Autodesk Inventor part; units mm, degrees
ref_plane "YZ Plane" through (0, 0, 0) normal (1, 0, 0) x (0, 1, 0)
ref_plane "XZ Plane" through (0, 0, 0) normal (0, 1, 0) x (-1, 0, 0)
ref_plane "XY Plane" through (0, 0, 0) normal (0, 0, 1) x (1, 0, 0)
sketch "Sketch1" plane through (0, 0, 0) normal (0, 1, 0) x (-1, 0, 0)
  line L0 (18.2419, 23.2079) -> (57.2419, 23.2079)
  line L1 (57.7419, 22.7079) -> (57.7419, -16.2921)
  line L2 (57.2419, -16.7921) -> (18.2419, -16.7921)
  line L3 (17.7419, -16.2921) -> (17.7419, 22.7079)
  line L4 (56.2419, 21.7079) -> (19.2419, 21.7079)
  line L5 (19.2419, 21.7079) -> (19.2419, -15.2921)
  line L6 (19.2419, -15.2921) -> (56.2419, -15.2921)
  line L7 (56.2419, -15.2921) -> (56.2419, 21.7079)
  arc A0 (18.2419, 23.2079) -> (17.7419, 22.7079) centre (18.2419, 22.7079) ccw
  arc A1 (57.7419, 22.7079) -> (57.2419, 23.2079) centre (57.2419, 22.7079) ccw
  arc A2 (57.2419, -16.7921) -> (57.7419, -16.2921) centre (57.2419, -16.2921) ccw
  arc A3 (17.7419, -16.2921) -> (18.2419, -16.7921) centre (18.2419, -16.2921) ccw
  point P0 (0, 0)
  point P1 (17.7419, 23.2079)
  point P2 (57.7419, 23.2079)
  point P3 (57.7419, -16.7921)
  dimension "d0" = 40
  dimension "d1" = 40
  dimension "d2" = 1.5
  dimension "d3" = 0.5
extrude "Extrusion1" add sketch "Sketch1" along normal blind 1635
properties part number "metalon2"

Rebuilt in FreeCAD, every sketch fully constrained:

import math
import FreeCAD as App
import Part
import Sketcher
from FreeCAD import Vector
Q = App.Units.Quantity


def add_polygon(sketch, points):
    """Adds a closed chain of lines whose ends are joined by coincident constraints."""
    first, n = sketch.GeometryCount, len(points)
    for a, b in zip(points, points[1:] + points[:1]):
        sketch.addGeometry(Part.LineSegment(App.Vector(*a, 0), App.Vector(*b, 0)), False)
    for i in range(n):
        sketch.addConstraint(Sketcher.Constraint("Coincident", first + i, 2, first + (i + 1) % n, 1))

doc = App.newDocument("Part")
params = doc.addObject("Spreadsheet::Sheet", "Params")
for row, (alias, value) in enumerate([
    ("sketch1_radius", "0.5 mm"),
    ("sketch1_width", "39 mm"),
    ("pad1_length", "1635 mm"),
], start=1):
    params.set(f"A{row}", alias)
    params.set(f"B{row}", "=" + value)
    params.setAlias(f"B{row}", alias)

body = doc.addObject("PartDesign::Body", "Body")

# Sketch on XZ plane
sketch1 = body.newObject("Sketcher::SketchObject", "Sketch")
sketch1.AttachmentSupport = (doc.getObject("XZ_Plane"), [""])
sketch1.MapMode = "FlatFace"
sketch1.addGeometry(Part.LineSegment(Vector(-57.2, 23.2, 0), Vector(-18.2, 23.2, 0)), False)  # 0
sketch1.addGeometry(Part.ArcOfCircle(Part.Circle(Vector(-18.2, 22.7, 0), Vector(0, 0, 1), 0.5), math.radians(0), math.radians(90)), False)  # 1
sketch1.addGeometry(Part.LineSegment(Vector(-17.7, 22.7, 0), Vector(-17.7, -16.3, 0)), False)  # 2
sketch1.addGeometry(Part.ArcOfCircle(Part.Circle(Vector(-18.2, -16.3, 0), Vector(0, 0, 1), 0.5), math.radians(-90), math.radians(0)), False)  # 3
sketch1.addGeometry(Part.LineSegment(Vector(-18.2, -16.8, 0), Vector(-57.2, -16.8, 0)), False)  # 4
sketch1.addGeometry(Part.ArcOfCircle(Part.Circle(Vector(-57.2, -16.3, 0), Vector(0, 0, 1), 0.5), math.radians(180), math.radians(270)), False)  # 5
sketch1.addGeometry(Part.LineSegment(Vector(-57.7, -16.3, 0), Vector(-57.7, 22.7, 0)), False)  # 6
sketch1.addGeometry(Part.ArcOfCircle(Part.Circle(Vector(-57.2, 22.7, 0), Vector(0, 0, 1), 0.5), math.radians(90), math.radians(180)), False)  # 7
add_polygon(sketch1, [(-19.2, 21.7), (-56.2, 21.7), (-56.2, -15.3), (-19.2, -15.3)])  # lines 8-11
sketch1.addConstraint(Sketcher.Constraint("Tangent", 0, 2, 1, 2))
sketch1.addConstraint(Sketcher.Constraint("Tangent", 1, 1, 2, 1))
sketch1.addConstraint(Sketcher.Constraint("Tangent", 2, 2, 3, 2))
sketch1.addConstraint(Sketcher.Constraint("Tangent", 3, 1, 4, 1))
sketch1.addConstraint(Sketcher.Constraint("Tangent", 4, 2, 5, 2))
sketch1.addConstraint(Sketcher.Constraint("Tangent", 5, 1, 6, 1))
sketch1.addConstraint(Sketcher.Constraint("Tangent", 6, 2, 7, 2))
sketch1.addConstraint(Sketcher.Constraint("Tangent", 7, 1, 0, 1))
sketch1.addConstraint(Sketcher.Constraint("Horizontal", 0))
sketch1.addConstraint(Sketcher.Constraint("Vertical", 2))
sketch1.addConstraint(Sketcher.Constraint("Horizontal", 4))
sketch1.addConstraint(Sketcher.Constraint("Vertical", 6))
sketch1.addConstraint(Sketcher.Constraint("Horizontal", 8))
sketch1.addConstraint(Sketcher.Constraint("Vertical", 9))
sketch1.addConstraint(Sketcher.Constraint("Horizontal", 10))
sketch1.addConstraint(Sketcher.Constraint("Vertical", 11))
sketch1.addConstraint(Sketcher.Constraint("Equal", 1, 3))
sketch1.addConstraint(Sketcher.Constraint("Equal", 3, 5))
sketch1.addConstraint(Sketcher.Constraint("Equal", 5, 7))
sketch1.addConstraint(Sketcher.Constraint("Equal", 4, 2))
sketch1.addConstraint(Sketcher.Constraint("Equal", 10, 9))
sketch1.addConstraint(Sketcher.Constraint("Radius", 1, Q("0.5 mm")))
sketch1.addConstraint(Sketcher.Constraint("DistanceX", 6, 2, 8, 2, Q("1.5 mm")))
sketch1.addConstraint(Sketcher.Constraint("DistanceY", 8, 2, 7, 1, Q("1.5 mm")))
sketch1.addConstraint(Sketcher.Constraint("DistanceY", 4, 2, 9, 2, Q("1.5 mm")))
sketch1.addConstraint(Sketcher.Constraint("DistanceX", 0, 1, 0, 2, Q("39 mm")))
sketch1.addConstraint(Sketcher.Constraint("DistanceX", 1, 3, -1, 1, Q("18.242 mm")))
sketch1.addConstraint(Sketcher.Constraint("DistanceY", -1, 1, 1, 3, Q("22.708 mm")))
sketch1.setExpression("Constraints[25]", "Params.sketch1_radius")
sketch1.setExpression("Constraints[29]", "Params.sketch1_width")
pad1 = body.newObject("PartDesign::Pad", "Pad")
pad1.Profile = sketch1
pad1.setExpression("Length", "Params.pad1_length")
pad1.Reversed = True

doc.recompute()
